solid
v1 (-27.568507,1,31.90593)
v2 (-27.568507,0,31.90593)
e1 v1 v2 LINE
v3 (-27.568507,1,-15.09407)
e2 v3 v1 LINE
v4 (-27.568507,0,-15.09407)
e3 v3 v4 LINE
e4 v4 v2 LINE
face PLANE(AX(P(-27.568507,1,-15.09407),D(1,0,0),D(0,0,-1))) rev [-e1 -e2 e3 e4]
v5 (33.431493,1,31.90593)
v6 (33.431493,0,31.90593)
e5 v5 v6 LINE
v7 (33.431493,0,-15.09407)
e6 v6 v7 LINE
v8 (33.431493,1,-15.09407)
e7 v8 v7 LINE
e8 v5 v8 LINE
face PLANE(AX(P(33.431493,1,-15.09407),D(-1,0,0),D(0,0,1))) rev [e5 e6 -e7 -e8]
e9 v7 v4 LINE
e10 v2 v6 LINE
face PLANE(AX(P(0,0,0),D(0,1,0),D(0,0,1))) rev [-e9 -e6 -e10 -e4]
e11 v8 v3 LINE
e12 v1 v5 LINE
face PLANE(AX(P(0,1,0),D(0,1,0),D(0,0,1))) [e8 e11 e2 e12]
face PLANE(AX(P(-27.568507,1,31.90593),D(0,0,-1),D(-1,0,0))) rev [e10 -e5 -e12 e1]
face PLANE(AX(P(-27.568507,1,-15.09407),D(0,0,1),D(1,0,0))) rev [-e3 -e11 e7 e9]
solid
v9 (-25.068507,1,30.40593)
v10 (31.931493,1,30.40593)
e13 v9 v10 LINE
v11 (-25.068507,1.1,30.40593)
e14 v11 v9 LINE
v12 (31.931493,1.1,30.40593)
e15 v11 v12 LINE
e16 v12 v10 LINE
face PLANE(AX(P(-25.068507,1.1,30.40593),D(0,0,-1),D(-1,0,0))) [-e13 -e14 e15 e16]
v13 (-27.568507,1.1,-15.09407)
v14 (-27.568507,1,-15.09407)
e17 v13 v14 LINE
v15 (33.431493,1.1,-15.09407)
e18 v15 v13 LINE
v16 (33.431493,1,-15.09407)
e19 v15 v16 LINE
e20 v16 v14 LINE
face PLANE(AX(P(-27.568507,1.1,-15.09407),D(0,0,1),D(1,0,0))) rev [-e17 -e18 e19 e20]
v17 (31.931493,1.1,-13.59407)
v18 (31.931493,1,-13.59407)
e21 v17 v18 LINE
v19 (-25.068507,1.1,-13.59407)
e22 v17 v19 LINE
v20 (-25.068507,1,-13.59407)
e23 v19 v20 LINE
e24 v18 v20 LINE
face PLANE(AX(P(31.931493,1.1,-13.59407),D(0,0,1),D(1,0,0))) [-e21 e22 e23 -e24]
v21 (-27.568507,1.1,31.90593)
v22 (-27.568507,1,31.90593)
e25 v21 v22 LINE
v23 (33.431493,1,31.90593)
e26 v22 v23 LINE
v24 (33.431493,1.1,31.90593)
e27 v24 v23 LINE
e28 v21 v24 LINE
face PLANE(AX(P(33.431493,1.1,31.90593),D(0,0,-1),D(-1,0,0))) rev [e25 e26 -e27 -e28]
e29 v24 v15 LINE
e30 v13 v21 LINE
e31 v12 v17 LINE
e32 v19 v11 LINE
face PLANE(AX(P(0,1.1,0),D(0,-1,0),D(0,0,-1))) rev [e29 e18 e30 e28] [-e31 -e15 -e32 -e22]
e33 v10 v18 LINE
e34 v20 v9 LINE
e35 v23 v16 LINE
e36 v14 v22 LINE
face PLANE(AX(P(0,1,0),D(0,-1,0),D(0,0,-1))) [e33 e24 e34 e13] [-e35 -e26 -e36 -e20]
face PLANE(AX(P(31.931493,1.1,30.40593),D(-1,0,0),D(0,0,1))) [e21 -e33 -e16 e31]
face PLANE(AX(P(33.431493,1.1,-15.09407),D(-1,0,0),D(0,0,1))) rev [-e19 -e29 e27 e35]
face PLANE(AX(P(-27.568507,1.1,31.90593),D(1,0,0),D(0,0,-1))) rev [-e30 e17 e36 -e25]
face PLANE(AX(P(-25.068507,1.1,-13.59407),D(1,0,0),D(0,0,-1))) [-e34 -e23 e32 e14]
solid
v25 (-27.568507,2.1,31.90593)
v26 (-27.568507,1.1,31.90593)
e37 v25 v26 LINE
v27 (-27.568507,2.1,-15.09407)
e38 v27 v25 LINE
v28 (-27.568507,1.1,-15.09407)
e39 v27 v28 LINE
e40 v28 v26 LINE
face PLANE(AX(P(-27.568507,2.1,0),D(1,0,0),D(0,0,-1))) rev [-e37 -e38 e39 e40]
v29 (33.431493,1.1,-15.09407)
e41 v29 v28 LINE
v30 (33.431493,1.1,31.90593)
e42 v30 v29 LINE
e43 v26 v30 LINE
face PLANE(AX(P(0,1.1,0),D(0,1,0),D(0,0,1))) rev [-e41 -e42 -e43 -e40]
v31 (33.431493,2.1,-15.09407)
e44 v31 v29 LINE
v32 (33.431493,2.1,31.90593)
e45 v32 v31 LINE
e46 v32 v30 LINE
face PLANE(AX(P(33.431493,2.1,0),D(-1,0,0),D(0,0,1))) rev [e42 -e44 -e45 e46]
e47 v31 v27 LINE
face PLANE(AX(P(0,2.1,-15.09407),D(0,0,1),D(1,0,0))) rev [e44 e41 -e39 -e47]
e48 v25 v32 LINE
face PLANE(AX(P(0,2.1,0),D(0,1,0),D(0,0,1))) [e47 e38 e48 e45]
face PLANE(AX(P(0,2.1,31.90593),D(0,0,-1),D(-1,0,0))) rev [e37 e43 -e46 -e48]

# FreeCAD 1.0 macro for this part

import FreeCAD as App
import Part
import Sketcher
from FreeCAD import Vector


def add_polygon(sketch, points):
    """Adds a closed chain of lines whose ends are joined by coincident constraints."""
    first, n = sketch.GeometryCount, len(points)
    for a, b in zip(points, points[1:] + points[:1]):
        sketch.addGeometry(Part.LineSegment(App.Vector(*a, 0), App.Vector(*b, 0)), False)
    for i in range(n):
        sketch.addConstraint(Sketcher.Constraint("Coincident", first + i, 2, first + (i + 1) % n, 1))

doc = App.newDocument("Part")
params = doc.addObject("Spreadsheet::Sheet", "Params")
for row, (alias, value) in enumerate([
    ("sketch1_width", "61 mm"),
    ("sketch1_height", "47 mm"),
    ("pad1_length", "1 mm"),
    ("sketch2_width", "61 mm"),
    ("sketch2_width2", "57 mm"),
    ("sketch2_height", "47 mm"),
    ("sketch2_height2", "44 mm"),
    ("pad2_length", "0.1 mm"),
    ("sketch3_width", "61 mm"),
    ("sketch3_height", "47 mm"),
    ("pad3_length", "1 mm"),
], start=1):
    params.set(f"A{row}", alias)
    params.set(f"B{row}", "=" + value)
    params.setAlias(f"B{row}", alias)

body = doc.addObject("PartDesign::Body", "Body")

# Sketch on XZ plane
sketch1 = body.newObject("Sketcher::SketchObject", "Sketch")
sketch1.AttachmentSupport = (doc.getObject("XZ_Plane"), [""])
sketch1.MapMode = "FlatFace"
add_polygon(sketch1, [(-27.568507, -15.09407), (-27.568507, 31.90593), (33.431493, 31.90593), (33.431493, -15.09407)])  # lines 0-3
sketch1.addConstraint(Sketcher.Constraint("Vertical", 0))
sketch1.addConstraint(Sketcher.Constraint("Horizontal", 1))
sketch1.addConstraint(Sketcher.Constraint("Vertical", 2))
sketch1.addConstraint(Sketcher.Constraint("Horizontal", 3))
sketch1.addConstraint(Sketcher.Constraint("DistanceX", 1, 1, 1, 2, 61.0))
sketch1.addConstraint(Sketcher.Constraint("DistanceY", 0, 1, 0, 2, 47.0))
sketch1.addConstraint(Sketcher.Constraint("DistanceY", -1, 1, 0, 2, 31.90593))
sketch1.addConstraint(Sketcher.Constraint("DistanceX", 0, 2, -1, 1, 27.568507))
sketch1.setExpression("Constraints[8]", "Params.sketch1_width")
sketch1.setExpression("Constraints[9]", "Params.sketch1_height")
pad1 = body.newObject("PartDesign::Pad", "Pad")
pad1.Profile = sketch1
pad1.setExpression("Length", "Params.pad1_length")
pad1.Reversed = True
body2 = doc.addObject("PartDesign::Body", "Body001")

# Sketch on XZ plane
sketch2 = body2.newObject("Sketcher::SketchObject", "Sketch001")
sketch2.AttachmentSupport = (doc.getObject("XZ_Plane001"), [""])
sketch2.MapMode = "FlatFace"
sketch2.AttachmentOffset = App.Placement(Vector(0, 0, -1), App.Rotation())
add_polygon(sketch2, [(-27.568507, -15.09407), (-27.568507, 31.90593), (33.431493, 31.90593), (33.431493, -15.09407)])  # lines 0-3
add_polygon(sketch2, [(31.931493, 30.40593), (-25.068507, 30.40593), (-25.068507, -13.59407), (31.931493, -13.59407)])  # lines 4-7
sketch2.addConstraint(Sketcher.Constraint("Vertical", 0))
sketch2.addConstraint(Sketcher.Constraint("Horizontal", 1))
sketch2.addConstraint(Sketcher.Constraint("Vertical", 2))
sketch2.addConstraint(Sketcher.Constraint("Horizontal", 3))
sketch2.addConstraint(Sketcher.Constraint("Horizontal", 4))
sketch2.addConstraint(Sketcher.Constraint("Vertical", 5))
sketch2.addConstraint(Sketcher.Constraint("Horizontal", 6))
sketch2.addConstraint(Sketcher.Constraint("Vertical", 7))
sketch2.addConstraint(Sketcher.Constraint("DistanceX", 1, 1, 1, 2, 61.0))
sketch2.addConstraint(Sketcher.Constraint("DistanceX", 4, 2, 4, 1, 57.0))
sketch2.addConstraint(Sketcher.Constraint("DistanceY", 0, 1, 0, 2, 47.0))
sketch2.addConstraint(Sketcher.Constraint("DistanceY", 5, 2, 5, 1, 44.0))
sketch2.addConstraint(Sketcher.Constraint("DistanceX", 0, 2, 4, 2, 2.5))
sketch2.addConstraint(Sketcher.Constraint("DistanceY", 4, 2, 0, 2, 1.5))
sketch2.addConstraint(Sketcher.Constraint("DistanceY", -1, 1, 0, 2, 31.90593))
sketch2.addConstraint(Sketcher.Constraint("DistanceX", 0, 2, -1, 1, 27.568507))
sketch2.setExpression("Constraints[16]", "Params.sketch2_width")
sketch2.setExpression("Constraints[17]", "Params.sketch2_width2")
sketch2.setExpression("Constraints[18]", "Params.sketch2_height")
sketch2.setExpression("Constraints[19]", "Params.sketch2_height2")
pad2 = body2.newObject("PartDesign::Pad", "Pad001")
pad2.Profile = sketch2
pad2.setExpression("Length", "Params.pad2_length")
pad2.Reversed = True
body3 = doc.addObject("PartDesign::Body", "Body002")

# Sketch on XZ plane
sketch3 = body3.newObject("Sketcher::SketchObject", "Sketch002")
sketch3.AttachmentSupport = (doc.getObject("XZ_Plane002"), [""])
sketch3.MapMode = "FlatFace"
sketch3.AttachmentOffset = App.Placement(Vector(0, 0, -1.1), App.Rotation())
add_polygon(sketch3, [(-27.568507, -15.09407), (-27.568507, 31.90593), (33.431493, 31.90593), (33.431493, -15.09407)])  # lines 0-3
sketch3.addConstraint(Sketcher.Constraint("Vertical", 0))
sketch3.addConstraint(Sketcher.Constraint("Horizontal", 1))
sketch3.addConstraint(Sketcher.Constraint("Vertical", 2))
sketch3.addConstraint(Sketcher.Constraint("Horizontal", 3))
sketch3.addConstraint(Sketcher.Constraint("DistanceX", 1, 1, 1, 2, 61.0))
sketch3.addConstraint(Sketcher.Constraint("DistanceY", 0, 1, 0, 2, 47.0))
sketch3.addConstraint(Sketcher.Constraint("DistanceY", -1, 1, 0, 2, 31.90593))
sketch3.addConstraint(Sketcher.Constraint("DistanceX", 0, 2, -1, 1, 27.568507))
sketch3.setExpression("Constraints[8]", "Params.sketch3_width")
sketch3.setExpression("Constraints[9]", "Params.sketch3_height")
pad3 = body3.newObject("PartDesign::Pad", "Pad002")
pad3.Profile = sketch3
pad3.setExpression("Length", "Params.pad3_length")
pad3.Reversed = True

doc.recompute()
